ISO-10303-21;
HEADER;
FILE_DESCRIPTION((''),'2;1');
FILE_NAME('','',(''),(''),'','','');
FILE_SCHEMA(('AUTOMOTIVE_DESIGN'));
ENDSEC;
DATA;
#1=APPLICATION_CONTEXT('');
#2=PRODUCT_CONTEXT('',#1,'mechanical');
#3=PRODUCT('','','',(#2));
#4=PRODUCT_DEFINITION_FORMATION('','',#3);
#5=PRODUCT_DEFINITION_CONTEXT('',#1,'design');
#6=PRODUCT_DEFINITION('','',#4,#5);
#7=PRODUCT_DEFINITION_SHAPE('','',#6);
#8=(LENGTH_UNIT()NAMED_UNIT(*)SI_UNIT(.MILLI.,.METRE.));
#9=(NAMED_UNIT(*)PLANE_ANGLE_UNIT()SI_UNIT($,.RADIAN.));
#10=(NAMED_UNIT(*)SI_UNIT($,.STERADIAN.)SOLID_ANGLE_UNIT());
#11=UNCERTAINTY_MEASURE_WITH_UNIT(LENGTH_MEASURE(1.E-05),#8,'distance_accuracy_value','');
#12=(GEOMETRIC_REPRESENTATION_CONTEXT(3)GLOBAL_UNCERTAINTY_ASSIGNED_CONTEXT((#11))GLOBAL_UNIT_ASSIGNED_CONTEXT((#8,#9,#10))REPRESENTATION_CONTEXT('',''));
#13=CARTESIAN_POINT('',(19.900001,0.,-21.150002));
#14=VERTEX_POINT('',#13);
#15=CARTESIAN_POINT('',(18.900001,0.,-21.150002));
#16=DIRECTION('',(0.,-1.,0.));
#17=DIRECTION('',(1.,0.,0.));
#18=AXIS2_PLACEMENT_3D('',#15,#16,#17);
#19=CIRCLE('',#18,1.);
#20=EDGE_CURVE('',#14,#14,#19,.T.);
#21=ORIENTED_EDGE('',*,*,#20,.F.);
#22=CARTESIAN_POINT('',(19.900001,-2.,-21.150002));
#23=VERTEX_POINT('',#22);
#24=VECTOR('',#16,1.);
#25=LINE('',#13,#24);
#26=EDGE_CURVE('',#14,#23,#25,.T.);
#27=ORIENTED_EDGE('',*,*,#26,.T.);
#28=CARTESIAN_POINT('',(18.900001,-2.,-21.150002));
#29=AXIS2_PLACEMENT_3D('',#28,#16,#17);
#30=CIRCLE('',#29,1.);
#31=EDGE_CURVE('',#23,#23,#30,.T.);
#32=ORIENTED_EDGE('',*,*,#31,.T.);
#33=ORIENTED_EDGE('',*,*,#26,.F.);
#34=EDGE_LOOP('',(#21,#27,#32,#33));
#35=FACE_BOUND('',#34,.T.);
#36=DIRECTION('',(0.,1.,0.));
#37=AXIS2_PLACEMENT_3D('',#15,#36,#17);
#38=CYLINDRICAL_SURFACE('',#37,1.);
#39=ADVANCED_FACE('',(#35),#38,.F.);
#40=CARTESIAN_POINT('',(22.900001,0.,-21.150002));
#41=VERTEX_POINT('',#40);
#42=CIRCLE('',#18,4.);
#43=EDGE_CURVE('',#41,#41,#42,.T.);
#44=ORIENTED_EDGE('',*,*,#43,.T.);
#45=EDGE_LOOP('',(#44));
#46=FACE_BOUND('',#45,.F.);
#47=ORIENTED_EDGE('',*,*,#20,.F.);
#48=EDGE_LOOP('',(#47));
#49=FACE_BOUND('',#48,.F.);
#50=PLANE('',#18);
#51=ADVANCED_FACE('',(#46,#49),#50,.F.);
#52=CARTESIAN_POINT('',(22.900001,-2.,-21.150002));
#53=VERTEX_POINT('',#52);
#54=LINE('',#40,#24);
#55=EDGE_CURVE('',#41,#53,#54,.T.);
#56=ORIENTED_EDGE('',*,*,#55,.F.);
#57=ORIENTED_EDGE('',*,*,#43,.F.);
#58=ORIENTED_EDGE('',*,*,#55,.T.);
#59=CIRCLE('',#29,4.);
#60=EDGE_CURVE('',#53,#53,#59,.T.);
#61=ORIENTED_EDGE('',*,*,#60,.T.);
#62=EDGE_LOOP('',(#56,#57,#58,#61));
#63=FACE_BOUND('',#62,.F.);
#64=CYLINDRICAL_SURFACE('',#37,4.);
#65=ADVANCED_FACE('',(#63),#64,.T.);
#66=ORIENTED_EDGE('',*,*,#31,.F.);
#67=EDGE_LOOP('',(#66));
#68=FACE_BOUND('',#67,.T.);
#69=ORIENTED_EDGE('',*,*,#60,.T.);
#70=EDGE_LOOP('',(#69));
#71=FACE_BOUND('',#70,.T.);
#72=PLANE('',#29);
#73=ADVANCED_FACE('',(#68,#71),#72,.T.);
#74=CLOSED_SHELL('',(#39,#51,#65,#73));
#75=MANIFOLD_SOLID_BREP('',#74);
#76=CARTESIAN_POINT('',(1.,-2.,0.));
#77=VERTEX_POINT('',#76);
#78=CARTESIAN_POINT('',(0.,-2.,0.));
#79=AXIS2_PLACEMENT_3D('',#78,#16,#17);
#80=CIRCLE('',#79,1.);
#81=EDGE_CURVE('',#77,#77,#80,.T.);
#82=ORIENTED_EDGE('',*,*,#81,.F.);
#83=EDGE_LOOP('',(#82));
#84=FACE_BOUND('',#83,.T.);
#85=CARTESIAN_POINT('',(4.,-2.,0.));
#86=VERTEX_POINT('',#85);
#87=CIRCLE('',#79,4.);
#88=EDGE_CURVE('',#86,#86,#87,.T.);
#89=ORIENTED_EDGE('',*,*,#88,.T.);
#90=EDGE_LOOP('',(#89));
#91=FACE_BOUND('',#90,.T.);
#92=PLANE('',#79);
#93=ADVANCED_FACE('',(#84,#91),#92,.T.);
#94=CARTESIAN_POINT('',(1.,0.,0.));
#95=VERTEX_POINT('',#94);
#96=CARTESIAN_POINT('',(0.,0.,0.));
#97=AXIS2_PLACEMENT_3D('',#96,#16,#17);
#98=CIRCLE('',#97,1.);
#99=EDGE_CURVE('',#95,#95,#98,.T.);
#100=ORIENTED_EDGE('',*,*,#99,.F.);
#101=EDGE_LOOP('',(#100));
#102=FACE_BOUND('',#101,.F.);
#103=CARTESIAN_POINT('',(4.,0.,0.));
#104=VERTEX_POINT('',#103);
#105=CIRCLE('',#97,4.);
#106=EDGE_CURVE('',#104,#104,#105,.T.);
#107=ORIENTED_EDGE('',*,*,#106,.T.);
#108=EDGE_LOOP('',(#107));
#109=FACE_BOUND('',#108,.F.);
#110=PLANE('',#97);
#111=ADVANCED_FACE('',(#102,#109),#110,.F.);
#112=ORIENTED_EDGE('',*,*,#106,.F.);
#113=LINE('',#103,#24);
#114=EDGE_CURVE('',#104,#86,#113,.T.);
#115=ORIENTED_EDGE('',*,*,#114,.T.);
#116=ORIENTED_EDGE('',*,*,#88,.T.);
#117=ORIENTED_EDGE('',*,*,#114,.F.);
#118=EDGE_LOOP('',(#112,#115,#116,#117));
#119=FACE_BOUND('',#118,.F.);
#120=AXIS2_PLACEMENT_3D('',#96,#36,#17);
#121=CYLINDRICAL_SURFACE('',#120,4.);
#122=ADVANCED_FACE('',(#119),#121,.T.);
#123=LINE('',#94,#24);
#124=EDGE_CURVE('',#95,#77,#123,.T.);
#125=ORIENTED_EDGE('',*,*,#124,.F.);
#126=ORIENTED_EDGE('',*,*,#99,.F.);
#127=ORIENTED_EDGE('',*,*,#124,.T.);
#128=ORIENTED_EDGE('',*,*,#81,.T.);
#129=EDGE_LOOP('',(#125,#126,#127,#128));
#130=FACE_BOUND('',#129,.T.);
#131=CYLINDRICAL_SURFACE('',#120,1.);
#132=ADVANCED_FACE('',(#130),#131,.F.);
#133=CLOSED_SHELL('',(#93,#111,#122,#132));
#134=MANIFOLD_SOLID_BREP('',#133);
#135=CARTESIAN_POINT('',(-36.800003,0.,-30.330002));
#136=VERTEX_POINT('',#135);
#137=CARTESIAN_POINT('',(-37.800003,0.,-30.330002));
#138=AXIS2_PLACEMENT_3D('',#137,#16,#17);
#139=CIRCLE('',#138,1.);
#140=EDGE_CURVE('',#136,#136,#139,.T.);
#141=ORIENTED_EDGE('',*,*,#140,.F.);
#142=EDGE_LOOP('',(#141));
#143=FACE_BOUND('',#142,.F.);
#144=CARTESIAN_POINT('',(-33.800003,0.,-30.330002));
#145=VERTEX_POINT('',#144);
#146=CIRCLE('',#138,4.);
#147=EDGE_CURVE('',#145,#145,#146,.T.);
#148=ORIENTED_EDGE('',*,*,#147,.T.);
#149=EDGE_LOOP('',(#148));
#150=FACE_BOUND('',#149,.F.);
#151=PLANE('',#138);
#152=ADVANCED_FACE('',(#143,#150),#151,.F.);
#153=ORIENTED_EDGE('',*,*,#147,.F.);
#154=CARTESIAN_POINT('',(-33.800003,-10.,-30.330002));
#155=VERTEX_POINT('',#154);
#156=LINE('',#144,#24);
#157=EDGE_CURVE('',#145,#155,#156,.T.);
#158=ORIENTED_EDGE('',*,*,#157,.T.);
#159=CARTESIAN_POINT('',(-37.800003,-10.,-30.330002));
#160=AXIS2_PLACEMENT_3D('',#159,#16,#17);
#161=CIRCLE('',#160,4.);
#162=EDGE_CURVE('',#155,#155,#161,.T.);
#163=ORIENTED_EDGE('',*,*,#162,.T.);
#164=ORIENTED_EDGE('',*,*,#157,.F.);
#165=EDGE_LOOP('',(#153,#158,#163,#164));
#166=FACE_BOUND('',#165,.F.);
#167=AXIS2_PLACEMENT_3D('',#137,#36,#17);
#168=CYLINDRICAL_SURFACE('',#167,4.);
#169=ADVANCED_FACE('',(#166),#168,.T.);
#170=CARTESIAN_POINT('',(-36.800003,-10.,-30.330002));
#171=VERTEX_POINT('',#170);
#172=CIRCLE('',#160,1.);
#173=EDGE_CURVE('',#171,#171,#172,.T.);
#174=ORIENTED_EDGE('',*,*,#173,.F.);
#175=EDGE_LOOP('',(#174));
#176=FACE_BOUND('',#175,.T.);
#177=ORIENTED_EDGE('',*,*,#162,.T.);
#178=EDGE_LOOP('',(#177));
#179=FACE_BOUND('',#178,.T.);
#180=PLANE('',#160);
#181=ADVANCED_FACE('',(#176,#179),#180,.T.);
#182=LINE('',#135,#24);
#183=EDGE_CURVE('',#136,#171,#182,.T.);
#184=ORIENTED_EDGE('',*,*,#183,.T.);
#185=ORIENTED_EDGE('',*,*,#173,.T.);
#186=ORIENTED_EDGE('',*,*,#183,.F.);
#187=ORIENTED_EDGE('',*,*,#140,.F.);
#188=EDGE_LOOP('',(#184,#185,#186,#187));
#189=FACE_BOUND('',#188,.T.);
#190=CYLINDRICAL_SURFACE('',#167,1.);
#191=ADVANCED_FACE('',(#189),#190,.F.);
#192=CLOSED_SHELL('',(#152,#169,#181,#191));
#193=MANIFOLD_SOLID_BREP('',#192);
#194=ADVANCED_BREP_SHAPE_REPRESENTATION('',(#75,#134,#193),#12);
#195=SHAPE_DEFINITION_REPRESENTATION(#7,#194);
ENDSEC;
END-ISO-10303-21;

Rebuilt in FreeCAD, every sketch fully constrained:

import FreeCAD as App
import Part
import Sketcher

V = App.Vector
Q = App.Units.Quantity

doc = App.newDocument("Part")
body = doc.addObject("PartDesign::Body", "Body")

sketch1 = body.newObject("Sketcher::SketchObject", "Sketch")
sketch1.AttachmentSupport = (doc.getObject("XZ_Plane"), [""])
sketch1.MapMode = "FlatFace"
sketch1.addGeometry(Part.Circle(V(0, 0, 0), V(0, 0, 1), 4), False)
sketch1.addGeometry(Part.Circle(V(0, 0, 0), V(0, 0, 1), 1), False)
sketch1.addConstraint(Sketcher.Constraint("Coincident", 0, 3, -1, 1))
sketch1.addConstraint(Sketcher.Constraint("Coincident", 1, 3, -1, 1))
sketch1.addConstraint(Sketcher.Constraint("Diameter", 0, Q("8 mm")))
sketch1.addConstraint(Sketcher.Constraint("Diameter", 1, Q("2 mm")))
pad1 = body.newObject("PartDesign::Pad", "Pad")
pad1.Profile = sketch1
pad1.Length = 2
body2 = doc.addObject("PartDesign::Body", "Body001")

sketch2 = body2.newObject("Sketcher::SketchObject", "Sketch001")
sketch2.AttachmentSupport = (doc.getObject("XZ_Plane001"), [""])
sketch2.MapMode = "FlatFace"
sketch2.addGeometry(Part.Circle(V(-37.8, -30.3, 0), V(0, 0, 1), 4), False)
sketch2.addGeometry(Part.Circle(V(-37.8, -30.3, 0), V(0, 0, 1), 1), False)
sketch2.addConstraint(Sketcher.Constraint("Coincident", 1, 3, 0, 3))
sketch2.addConstraint(Sketcher.Constraint("Diameter", 0, Q("8 mm")))
sketch2.addConstraint(Sketcher.Constraint("Diameter", 1, Q("2 mm")))
sketch2.addConstraint(Sketcher.Constraint("DistanceX", 0, 3, -1, 1, Q("37.800003 mm")))
sketch2.addConstraint(Sketcher.Constraint("DistanceY", 0, 3, -1, 1, Q("30.330002 mm")))
pad2 = body2.newObject("PartDesign::Pad", "Pad001")
pad2.Profile = sketch2
pad2.Length = 10
body3 = doc.addObject("PartDesign::Body", "Body002")

sketch3 = body3.newObject("Sketcher::SketchObject", "Sketch002")
sketch3.AttachmentSupport = (doc.getObject("XZ_Plane002"), [""])
sketch3.MapMode = "FlatFace"
sketch3.addGeometry(Part.Circle(V(18.9, -21.2, 0), V(0, 0, 1), 4), False)
sketch3.addGeometry(Part.Circle(V(18.9, -21.2, 0), V(0, 0, 1), 1), False)
sketch3.addConstraint(Sketcher.Constraint("Coincident", 1, 3, 0, 3))
sketch3.addConstraint(Sketcher.Constraint("Diameter", 0, Q("8 mm")))
sketch3.addConstraint(Sketcher.Constraint("Diameter", 1, Q("2 mm")))
sketch3.addConstraint(Sketcher.Constraint("DistanceX", -1, 1, 0, 3, Q("18.900001 mm")))
sketch3.addConstraint(Sketcher.Constraint("DistanceY", 0, 3, -1, 1, Q("21.150002 mm")))
pad3 = body3.newObject("PartDesign::Pad", "Pad002")
pad3.Profile = sketch3
pad3.Length = 2

doc.recompute()
